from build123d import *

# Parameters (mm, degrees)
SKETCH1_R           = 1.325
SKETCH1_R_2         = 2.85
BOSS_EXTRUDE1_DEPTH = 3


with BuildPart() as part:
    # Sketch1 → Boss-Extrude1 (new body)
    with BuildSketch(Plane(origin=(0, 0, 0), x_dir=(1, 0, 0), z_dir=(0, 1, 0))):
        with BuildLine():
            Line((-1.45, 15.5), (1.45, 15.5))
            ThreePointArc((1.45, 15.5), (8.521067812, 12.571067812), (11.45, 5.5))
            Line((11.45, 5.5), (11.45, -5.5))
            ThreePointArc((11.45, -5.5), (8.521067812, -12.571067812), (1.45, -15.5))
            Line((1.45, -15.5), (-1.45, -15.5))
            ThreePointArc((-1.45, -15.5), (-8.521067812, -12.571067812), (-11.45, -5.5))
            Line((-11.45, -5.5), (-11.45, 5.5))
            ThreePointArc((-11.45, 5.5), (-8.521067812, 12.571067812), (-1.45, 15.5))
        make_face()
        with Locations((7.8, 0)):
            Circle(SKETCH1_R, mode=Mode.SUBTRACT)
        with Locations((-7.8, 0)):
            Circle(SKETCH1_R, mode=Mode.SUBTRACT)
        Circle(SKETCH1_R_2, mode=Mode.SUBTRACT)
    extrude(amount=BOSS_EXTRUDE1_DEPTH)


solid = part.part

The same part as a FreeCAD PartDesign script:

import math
import FreeCAD as App
import Part
import Sketcher
Q = App.Units.Quantity

doc = App.newDocument("Part")
params = doc.addObject("Spreadsheet::Sheet", "Params")
for row, (alias, value) in enumerate([
    ("sketch1_radius", "10 mm"),
    ("sketch1_diameter", "5.7 mm"),
    ("sketch1_diameter2", "2.65 mm"),
    ("sketch1_height", "11 mm"),
    ("sketch1_width", "2.9 mm"),
    ("pad1_length", "3 mm"),
], start=1):
    params.set(f"A{row}", alias)
    params.set(f"B{row}", "=" + value)
    params.setAlias(f"B{row}", alias)

body = doc.addObject("PartDesign::Body", "Body")

# Sketch on XZ plane
sketch1 = doc.addObject("Sketcher::SketchObject", "Sketch")
body.addObject(sketch1)
sketch1.AttachmentSupport = (doc.XZ_Plane, [""])
sketch1.MapMode = "FlatFace"
sketch1.addGeometry([
    Part.LineSegment(App.Vector(1.45, -15.5, 0), App.Vector(-1.45, -15.5, 0)),  # 0
    Part.ArcOfCircle(Part.Circle(App.Vector(-1.45, -5.5, 0), App.Vector(0, 0, 1), 10), math.radians(180), math.radians(270)),  # 1
    Part.LineSegment(App.Vector(-11.45, -5.5, 0), App.Vector(-11.45, 5.5, 0)),  # 2
    Part.ArcOfCircle(Part.Circle(App.Vector(-1.45, 5.5, 0), App.Vector(0, 0, 1), 10), math.radians(90), math.radians(180)),  # 3
    Part.LineSegment(App.Vector(-1.45, 15.5, 0), App.Vector(1.45, 15.5, 0)),  # 4
    Part.ArcOfCircle(Part.Circle(App.Vector(1.45, 5.5, 0), App.Vector(0, 0, 1), 10), math.radians(0), math.radians(90)),  # 5
    Part.LineSegment(App.Vector(11.45, 5.5, 0), App.Vector(11.45, -5.5, 0)),  # 6
    Part.ArcOfCircle(Part.Circle(App.Vector(1.45, -5.5, 0), App.Vector(0, 0, 1), 10), math.radians(-90), math.radians(0)),  # 7
    Part.Circle(App.Vector(7.8, 0, 0), App.Vector(0, 0, 1), 1.325),  # 8
    Part.Circle(App.Vector(0, 0, 0), App.Vector(0, 0, 1), 2.85),  # 9
    Part.Circle(App.Vector(-7.8, 0, 0), App.Vector(0, 0, 1), 1.325),  # 10
], False)
sketch1.addConstraint([
    Sketcher.Constraint("Tangent", 0, 2, 1, 2),
    Sketcher.Constraint("Tangent", 1, 1, 2, 1),
    Sketcher.Constraint("Tangent", 2, 2, 3, 2),
    Sketcher.Constraint("Tangent", 3, 1, 4, 1),
    Sketcher.Constraint("Tangent", 4, 2, 5, 2),
    Sketcher.Constraint("Tangent", 5, 1, 6, 1),
    Sketcher.Constraint("Tangent", 6, 2, 7, 2),
    Sketcher.Constraint("Tangent", 7, 1, 0, 1),
    Sketcher.Constraint("Horizontal", 0),
    Sketcher.Constraint("Vertical", 2),
    Sketcher.Constraint("Horizontal", 4),
    Sketcher.Constraint("Vertical", 6),
    Sketcher.Constraint("Coincident", 9, 3, -1, 1),
    Sketcher.Constraint("Equal", 1, 3),
    Sketcher.Constraint("Equal", 3, 5),
    Sketcher.Constraint("Equal", 5, 7),
    Sketcher.Constraint("Equal", 8, 10),
    Sketcher.Constraint("Symmetric", 1, 3, 5, 3, -1, 1),
    Sketcher.Constraint("Symmetric", 8, 3, 10, 3, -1, 1),
    Sketcher.Constraint("PointOnObject", 8, 3, -1),
    Sketcher.Constraint("Radius", 1, Q("10 mm")),
    Sketcher.Constraint("Diameter", 9, Q("5.7 mm")),
    Sketcher.Constraint("Diameter", 8, Q("2.65 mm")),
    Sketcher.Constraint("DistanceY", 2, 1, 2, 2, Q("11 mm")),
    Sketcher.Constraint("DistanceX", 0, 2, 0, 1, Q("2.9 mm")),
    Sketcher.Constraint("DistanceX", -1, 1, 8, 3, Q("7.8 mm")),
])
sketch1.setExpression("Constraints[20]", "Params.sketch1_radius")
sketch1.setExpression("Constraints[21]", "Params.sketch1_diameter")
sketch1.setExpression("Constraints[22]", "Params.sketch1_diameter2")
sketch1.setExpression("Constraints[23]", "Params.sketch1_height")
sketch1.setExpression("Constraints[24]", "Params.sketch1_width")
pad1 = doc.addObject("PartDesign::Pad", "Pad")
body.addObject(pad1)
pad1.Profile = sketch1
pad1.setExpression("Length", "Params.pad1_length")
pad1.Reversed = True

doc.recompute()
